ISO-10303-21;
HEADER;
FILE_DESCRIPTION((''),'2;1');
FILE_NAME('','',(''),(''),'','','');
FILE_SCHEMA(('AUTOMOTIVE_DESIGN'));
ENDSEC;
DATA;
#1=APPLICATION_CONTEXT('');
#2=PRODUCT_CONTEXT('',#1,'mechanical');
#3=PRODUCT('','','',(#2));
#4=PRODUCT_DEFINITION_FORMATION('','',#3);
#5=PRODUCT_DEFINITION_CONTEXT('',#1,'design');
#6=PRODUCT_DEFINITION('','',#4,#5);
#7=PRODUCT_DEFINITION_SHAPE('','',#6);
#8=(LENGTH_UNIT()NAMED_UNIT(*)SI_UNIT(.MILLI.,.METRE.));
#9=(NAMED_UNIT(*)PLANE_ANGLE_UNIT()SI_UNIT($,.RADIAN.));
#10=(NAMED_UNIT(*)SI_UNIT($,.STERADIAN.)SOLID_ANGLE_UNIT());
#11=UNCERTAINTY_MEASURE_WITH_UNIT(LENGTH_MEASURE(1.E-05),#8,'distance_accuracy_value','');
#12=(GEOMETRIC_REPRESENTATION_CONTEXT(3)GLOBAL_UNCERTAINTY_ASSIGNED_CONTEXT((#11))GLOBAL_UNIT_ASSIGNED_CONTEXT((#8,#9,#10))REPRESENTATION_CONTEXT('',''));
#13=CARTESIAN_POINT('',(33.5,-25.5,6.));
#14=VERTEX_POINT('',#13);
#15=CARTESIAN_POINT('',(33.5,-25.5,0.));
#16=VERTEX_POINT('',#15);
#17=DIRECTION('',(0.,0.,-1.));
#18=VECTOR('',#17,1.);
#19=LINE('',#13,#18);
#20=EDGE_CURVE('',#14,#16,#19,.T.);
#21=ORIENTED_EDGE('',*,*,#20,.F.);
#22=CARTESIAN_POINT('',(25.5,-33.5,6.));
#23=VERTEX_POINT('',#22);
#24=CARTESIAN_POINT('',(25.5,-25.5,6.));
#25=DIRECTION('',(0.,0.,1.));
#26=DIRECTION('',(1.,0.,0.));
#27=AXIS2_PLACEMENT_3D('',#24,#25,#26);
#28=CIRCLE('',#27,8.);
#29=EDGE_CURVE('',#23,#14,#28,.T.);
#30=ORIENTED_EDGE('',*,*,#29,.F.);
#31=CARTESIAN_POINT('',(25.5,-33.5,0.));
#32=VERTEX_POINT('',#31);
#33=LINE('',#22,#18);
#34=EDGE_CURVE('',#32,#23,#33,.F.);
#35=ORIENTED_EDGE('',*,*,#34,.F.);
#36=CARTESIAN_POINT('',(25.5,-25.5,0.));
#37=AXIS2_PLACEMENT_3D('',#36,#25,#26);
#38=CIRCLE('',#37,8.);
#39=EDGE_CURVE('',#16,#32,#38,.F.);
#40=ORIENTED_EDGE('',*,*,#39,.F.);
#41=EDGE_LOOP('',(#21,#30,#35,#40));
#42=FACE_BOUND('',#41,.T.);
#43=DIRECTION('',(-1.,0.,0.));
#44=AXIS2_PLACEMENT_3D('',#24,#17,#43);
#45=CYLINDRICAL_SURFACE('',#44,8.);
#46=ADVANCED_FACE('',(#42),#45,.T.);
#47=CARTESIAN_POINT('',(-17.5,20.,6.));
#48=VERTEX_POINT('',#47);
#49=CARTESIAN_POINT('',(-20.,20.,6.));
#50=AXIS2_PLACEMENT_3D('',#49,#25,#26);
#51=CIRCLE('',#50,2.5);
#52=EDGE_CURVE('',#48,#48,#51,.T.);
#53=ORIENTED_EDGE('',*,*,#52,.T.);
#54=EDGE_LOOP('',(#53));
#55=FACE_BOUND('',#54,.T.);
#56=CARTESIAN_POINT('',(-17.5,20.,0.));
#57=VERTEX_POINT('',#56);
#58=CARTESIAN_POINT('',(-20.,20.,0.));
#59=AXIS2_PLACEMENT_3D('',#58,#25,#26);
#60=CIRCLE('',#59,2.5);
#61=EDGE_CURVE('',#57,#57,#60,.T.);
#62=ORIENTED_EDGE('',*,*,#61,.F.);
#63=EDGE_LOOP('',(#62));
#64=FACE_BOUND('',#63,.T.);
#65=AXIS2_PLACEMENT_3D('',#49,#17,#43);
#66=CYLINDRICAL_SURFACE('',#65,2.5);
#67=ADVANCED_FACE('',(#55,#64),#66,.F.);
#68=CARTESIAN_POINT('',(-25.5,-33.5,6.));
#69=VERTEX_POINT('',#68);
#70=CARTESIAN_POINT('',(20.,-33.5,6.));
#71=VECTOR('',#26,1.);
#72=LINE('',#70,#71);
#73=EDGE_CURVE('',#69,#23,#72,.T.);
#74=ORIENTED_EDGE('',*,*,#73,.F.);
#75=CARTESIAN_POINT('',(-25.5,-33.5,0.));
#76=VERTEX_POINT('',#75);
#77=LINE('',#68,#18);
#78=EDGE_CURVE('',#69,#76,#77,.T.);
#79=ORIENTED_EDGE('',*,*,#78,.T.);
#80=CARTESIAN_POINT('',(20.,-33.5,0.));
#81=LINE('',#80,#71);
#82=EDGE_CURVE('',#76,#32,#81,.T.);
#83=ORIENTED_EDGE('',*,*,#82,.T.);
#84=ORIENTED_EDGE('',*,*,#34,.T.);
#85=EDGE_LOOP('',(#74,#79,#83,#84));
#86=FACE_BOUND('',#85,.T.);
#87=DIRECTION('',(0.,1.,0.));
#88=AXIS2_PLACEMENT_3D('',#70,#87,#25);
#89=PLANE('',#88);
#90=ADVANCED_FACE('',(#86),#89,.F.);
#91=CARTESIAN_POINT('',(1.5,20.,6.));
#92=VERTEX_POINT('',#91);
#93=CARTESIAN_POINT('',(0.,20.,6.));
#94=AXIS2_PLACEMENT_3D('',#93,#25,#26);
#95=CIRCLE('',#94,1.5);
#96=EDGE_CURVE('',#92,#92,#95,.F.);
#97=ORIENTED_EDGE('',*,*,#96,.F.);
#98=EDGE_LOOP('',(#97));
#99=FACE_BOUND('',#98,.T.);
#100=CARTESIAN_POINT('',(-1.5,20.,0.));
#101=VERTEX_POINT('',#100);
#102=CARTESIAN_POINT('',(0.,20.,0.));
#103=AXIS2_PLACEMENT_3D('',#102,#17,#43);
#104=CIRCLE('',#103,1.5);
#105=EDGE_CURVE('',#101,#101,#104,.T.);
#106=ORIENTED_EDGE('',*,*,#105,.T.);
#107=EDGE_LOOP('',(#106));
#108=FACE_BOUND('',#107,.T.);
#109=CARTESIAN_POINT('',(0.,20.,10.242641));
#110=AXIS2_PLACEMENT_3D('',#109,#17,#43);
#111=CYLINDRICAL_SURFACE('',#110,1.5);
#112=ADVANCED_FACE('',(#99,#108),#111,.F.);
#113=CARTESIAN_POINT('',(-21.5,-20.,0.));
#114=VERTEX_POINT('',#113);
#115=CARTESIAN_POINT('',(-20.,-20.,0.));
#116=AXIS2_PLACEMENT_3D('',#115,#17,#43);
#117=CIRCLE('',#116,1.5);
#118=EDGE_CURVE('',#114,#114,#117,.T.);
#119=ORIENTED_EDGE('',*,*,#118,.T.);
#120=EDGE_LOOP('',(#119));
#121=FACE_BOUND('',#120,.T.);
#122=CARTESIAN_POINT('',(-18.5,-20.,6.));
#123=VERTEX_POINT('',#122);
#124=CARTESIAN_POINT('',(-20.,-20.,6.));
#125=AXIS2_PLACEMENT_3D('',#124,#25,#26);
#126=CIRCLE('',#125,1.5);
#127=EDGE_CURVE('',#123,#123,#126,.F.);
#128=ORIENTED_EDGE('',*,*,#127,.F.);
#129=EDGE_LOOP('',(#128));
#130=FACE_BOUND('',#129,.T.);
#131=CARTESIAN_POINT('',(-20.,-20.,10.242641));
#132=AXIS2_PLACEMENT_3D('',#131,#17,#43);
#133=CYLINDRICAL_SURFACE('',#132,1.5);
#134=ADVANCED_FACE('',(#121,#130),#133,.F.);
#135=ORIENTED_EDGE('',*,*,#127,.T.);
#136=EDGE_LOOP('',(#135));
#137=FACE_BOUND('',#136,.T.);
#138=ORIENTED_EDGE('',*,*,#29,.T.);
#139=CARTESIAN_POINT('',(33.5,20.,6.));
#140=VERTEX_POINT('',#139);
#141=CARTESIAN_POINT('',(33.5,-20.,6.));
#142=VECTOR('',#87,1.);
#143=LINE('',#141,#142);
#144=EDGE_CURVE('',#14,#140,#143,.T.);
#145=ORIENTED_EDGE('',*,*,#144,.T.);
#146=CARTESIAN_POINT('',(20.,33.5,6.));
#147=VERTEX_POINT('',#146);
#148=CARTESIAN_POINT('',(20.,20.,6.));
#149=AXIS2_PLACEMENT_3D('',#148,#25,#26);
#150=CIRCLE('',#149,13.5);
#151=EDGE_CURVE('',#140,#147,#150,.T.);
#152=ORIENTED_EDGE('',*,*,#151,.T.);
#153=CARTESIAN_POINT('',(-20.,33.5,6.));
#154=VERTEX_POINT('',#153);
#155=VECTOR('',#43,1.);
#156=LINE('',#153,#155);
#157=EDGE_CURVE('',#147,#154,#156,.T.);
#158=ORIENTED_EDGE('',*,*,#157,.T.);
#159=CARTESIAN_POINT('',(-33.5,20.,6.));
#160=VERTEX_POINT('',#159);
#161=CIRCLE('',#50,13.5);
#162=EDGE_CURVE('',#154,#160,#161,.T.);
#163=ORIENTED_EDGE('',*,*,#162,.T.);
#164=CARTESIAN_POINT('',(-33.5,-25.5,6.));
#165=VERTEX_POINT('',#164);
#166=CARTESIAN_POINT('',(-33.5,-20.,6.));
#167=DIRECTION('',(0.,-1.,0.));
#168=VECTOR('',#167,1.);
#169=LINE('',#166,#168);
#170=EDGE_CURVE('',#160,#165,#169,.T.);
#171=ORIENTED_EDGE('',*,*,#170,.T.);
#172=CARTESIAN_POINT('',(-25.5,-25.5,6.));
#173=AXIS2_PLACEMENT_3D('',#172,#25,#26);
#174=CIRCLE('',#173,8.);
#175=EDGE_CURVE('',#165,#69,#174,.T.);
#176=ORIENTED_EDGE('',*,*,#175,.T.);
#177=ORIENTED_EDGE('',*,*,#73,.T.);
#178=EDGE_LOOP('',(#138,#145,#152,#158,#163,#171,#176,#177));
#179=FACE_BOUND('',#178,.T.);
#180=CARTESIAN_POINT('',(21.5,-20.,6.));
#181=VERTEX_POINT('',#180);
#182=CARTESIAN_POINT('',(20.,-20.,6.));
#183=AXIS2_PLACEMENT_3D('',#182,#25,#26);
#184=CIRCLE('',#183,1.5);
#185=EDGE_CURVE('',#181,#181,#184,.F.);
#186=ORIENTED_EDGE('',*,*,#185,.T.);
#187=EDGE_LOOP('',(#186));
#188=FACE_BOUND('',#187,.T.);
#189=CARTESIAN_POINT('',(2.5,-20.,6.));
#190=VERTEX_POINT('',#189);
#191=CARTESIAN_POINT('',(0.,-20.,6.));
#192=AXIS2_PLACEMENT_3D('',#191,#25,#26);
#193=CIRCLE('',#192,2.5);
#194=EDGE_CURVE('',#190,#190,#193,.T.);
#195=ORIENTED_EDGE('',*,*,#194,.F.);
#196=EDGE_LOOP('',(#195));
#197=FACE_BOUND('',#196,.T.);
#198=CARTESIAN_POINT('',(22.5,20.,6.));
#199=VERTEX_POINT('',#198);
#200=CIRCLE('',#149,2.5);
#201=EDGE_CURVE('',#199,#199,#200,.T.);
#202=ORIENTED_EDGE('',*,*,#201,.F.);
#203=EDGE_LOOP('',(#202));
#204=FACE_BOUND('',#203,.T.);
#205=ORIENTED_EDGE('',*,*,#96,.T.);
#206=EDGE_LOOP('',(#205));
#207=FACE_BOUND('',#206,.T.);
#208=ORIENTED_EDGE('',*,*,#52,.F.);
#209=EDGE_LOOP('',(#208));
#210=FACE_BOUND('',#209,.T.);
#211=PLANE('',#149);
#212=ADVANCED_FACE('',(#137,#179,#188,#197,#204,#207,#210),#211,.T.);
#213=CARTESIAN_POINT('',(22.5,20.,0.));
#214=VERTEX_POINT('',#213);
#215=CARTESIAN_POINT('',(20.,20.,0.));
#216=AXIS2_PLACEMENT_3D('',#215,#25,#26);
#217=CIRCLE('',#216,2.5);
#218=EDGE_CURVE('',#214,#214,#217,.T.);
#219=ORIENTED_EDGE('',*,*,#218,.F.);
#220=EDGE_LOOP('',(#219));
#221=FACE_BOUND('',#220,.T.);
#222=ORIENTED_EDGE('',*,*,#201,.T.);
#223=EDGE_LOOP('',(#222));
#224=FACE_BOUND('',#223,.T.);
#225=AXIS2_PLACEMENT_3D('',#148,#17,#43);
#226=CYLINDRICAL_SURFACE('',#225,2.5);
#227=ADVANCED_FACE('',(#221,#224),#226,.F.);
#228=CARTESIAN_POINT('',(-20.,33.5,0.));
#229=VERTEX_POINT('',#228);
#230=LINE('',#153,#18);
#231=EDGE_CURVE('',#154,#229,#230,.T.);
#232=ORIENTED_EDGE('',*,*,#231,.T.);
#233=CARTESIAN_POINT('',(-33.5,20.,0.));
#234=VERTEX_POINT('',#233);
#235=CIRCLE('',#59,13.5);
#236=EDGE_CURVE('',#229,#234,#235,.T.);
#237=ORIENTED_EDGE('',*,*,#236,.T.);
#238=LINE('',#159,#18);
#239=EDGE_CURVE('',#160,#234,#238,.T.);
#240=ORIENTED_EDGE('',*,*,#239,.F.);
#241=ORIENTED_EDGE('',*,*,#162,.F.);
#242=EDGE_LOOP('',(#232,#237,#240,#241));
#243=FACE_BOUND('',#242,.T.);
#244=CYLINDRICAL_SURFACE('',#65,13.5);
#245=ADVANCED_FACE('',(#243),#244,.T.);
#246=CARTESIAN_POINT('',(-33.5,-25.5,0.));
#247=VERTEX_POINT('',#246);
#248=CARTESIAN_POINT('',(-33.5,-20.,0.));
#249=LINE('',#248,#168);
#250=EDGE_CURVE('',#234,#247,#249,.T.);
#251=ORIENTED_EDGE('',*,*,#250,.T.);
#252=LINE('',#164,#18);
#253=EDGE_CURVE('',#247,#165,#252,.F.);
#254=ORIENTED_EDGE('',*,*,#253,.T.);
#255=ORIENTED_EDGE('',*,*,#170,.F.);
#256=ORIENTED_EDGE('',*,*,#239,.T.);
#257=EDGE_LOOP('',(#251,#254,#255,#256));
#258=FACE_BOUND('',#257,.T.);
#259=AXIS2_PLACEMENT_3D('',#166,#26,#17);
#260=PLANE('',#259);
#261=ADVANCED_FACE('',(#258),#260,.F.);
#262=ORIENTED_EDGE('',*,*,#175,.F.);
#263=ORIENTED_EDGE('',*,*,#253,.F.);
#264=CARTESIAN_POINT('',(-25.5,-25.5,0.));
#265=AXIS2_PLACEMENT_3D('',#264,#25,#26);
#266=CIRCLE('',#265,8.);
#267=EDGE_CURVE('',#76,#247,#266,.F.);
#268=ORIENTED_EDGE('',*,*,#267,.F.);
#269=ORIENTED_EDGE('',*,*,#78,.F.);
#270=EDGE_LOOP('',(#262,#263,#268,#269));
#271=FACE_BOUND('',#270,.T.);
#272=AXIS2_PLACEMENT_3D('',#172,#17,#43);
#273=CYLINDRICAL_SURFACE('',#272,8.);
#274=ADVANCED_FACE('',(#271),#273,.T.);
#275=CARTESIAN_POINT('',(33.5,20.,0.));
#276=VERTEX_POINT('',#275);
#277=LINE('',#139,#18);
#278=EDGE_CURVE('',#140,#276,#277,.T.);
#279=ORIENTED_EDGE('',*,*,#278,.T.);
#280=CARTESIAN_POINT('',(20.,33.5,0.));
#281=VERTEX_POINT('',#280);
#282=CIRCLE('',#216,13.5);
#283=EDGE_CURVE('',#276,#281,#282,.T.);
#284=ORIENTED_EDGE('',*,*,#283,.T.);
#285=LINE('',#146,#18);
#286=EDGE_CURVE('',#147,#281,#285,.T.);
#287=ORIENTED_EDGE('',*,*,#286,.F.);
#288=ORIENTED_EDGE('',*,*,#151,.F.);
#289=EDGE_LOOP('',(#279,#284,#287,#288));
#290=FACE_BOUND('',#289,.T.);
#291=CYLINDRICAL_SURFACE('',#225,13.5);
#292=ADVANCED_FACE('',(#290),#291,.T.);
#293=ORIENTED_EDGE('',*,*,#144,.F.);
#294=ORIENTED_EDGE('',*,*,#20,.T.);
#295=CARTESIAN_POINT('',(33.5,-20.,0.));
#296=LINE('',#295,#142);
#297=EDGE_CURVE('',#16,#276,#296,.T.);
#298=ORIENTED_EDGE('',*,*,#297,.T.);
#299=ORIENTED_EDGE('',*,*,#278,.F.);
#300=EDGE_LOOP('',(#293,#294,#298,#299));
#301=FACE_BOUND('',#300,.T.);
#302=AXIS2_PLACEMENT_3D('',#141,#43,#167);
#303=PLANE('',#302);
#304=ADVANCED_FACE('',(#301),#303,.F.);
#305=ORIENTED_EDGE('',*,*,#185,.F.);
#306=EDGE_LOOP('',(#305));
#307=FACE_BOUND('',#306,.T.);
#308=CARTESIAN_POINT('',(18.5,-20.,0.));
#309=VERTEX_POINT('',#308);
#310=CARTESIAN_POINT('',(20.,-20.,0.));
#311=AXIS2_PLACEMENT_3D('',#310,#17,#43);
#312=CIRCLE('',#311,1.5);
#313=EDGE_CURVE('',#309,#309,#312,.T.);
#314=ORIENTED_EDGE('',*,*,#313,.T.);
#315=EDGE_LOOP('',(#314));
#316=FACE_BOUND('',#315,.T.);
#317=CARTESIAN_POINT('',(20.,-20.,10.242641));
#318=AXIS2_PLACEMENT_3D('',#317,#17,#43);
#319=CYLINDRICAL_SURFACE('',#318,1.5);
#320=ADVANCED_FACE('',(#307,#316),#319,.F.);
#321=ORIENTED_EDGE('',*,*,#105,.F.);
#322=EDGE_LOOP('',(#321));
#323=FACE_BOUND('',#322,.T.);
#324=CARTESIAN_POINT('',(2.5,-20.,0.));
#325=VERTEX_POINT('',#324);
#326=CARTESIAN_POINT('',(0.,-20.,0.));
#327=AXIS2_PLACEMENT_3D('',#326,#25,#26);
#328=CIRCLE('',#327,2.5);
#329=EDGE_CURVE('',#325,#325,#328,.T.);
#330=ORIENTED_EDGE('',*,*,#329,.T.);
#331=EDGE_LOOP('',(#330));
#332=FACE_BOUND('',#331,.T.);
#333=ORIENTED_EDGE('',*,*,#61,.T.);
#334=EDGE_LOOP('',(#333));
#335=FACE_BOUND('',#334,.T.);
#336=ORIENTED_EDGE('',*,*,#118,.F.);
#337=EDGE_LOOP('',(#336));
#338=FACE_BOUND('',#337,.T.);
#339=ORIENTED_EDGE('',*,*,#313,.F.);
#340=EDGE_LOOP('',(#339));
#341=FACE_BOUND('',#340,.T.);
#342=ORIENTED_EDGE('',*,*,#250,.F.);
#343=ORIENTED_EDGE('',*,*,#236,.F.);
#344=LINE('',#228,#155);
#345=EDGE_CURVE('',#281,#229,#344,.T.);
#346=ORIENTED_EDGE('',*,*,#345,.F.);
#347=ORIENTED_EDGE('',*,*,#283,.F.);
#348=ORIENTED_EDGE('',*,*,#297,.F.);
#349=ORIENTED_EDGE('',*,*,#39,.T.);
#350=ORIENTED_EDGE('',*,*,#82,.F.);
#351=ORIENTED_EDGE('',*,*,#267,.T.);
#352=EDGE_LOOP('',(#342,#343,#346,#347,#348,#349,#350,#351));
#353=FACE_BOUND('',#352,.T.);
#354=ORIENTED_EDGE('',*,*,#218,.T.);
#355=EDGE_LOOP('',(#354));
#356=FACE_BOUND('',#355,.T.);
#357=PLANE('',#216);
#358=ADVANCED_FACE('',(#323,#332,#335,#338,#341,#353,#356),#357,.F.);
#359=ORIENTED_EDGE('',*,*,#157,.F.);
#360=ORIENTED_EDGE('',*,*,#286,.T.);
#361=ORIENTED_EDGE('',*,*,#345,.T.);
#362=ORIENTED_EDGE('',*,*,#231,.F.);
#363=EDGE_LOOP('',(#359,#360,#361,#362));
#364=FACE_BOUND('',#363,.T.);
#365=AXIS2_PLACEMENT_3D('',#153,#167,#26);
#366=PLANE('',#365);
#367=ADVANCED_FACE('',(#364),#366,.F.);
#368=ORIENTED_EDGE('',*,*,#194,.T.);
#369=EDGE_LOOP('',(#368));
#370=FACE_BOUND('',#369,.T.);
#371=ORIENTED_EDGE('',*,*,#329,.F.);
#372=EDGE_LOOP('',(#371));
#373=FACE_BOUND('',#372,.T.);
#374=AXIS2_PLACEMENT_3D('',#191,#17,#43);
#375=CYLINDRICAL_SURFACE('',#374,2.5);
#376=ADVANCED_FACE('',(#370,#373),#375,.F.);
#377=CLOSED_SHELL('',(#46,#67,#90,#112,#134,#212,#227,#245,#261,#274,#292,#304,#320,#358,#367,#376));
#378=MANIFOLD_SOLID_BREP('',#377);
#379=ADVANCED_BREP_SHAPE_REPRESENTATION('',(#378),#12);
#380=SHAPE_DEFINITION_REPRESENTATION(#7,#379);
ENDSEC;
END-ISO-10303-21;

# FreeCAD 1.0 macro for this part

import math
import FreeCAD as App
import Part
import Sketcher
from FreeCAD import Vector


def edges_at(feature, points):
    """Names of the edges that pass closest to the given points."""
    edges = feature.Shape.Edges
    near = lambda p: min(range(len(edges)), key=lambda i: edges[i].distToShape(Part.Vertex(*p))[0])
    return sorted({f"Edge{near(p) + 1}" for p in points})

doc = App.newDocument("Part")
body = doc.addObject("PartDesign::Body", "Body")

# Sketch on XY plane
sketch1 = body.newObject("Sketcher::SketchObject", "Sketch")
sketch1.AttachmentSupport = (doc.getObject("XY_Plane"), [""])
sketch1.MapMode = "FlatFace"
sketch1.addGeometry(Part.LineSegment(Vector(20, 33.5, 0), Vector(-20, 33.5, 0)), False)
sketch1.addGeometry(Part.ArcOfCircle(Part.Circle(Vector(-20, 20, 0), Vector(0, 0, 1), 13.5), math.radians(90), math.radians(180)), False)
sketch1.addGeometry(Part.LineSegment(Vector(-33.5, 20, 0), Vector(-33.5, -20, 0)), False)
sketch1.addGeometry(Part.ArcOfCircle(Part.Circle(Vector(-20, -20, 0), Vector(0, 0, 1), 13.5), math.radians(180), math.radians(270)), False)
sketch1.addGeometry(Part.LineSegment(Vector(-20, -33.5, 0), Vector(20, -33.5, 0)), False)
sketch1.addGeometry(Part.ArcOfCircle(Part.Circle(Vector(20, -20, 0), Vector(0, 0, 1), 13.5), math.radians(-90), math.radians(0)), False)
sketch1.addGeometry(Part.LineSegment(Vector(33.5, -20, 0), Vector(33.5, 20, 0)), False)
sketch1.addGeometry(Part.ArcOfCircle(Part.Circle(Vector(20, 20, 0), Vector(0, 0, 1), 13.5), math.radians(0), math.radians(90)), False)
sketch1.addGeometry(Part.Circle(Vector(0, -20, 0), Vector(0, 0, 1), 2.5), False)
sketch1.addGeometry(Part.Circle(Vector(20, 20, 0), Vector(0, 0, 1), 2.5), False)
sketch1.addGeometry(Part.Circle(Vector(-20, 20, 0), Vector(0, 0, 1), 2.5), False)
sketch1.addConstraint(Sketcher.Constraint("Tangent", 0, 2, 1, 1))
sketch1.addConstraint(Sketcher.Constraint("Tangent", 1, 2, 2, 1))
sketch1.addConstraint(Sketcher.Constraint("Tangent", 2, 2, 3, 1))
sketch1.addConstraint(Sketcher.Constraint("Tangent", 3, 2, 4, 1))
sketch1.addConstraint(Sketcher.Constraint("Tangent", 4, 2, 5, 1))
sketch1.addConstraint(Sketcher.Constraint("Tangent", 5, 2, 6, 1))
sketch1.addConstraint(Sketcher.Constraint("Tangent", 6, 2, 7, 1))
sketch1.addConstraint(Sketcher.Constraint("Tangent", 7, 2, 0, 1))
sketch1.addConstraint(Sketcher.Constraint("Horizontal", 0))
sketch1.addConstraint(Sketcher.Constraint("Vertical", 2))
sketch1.addConstraint(Sketcher.Constraint("Horizontal", 4))
sketch1.addConstraint(Sketcher.Constraint("Vertical", 6))
sketch1.addConstraint(Sketcher.Constraint("Coincident", 9, 3, 7, 3))
sketch1.addConstraint(Sketcher.Constraint("Coincident", 10, 3, 1, 3))
sketch1.addConstraint(Sketcher.Constraint("Equal", 1, 3))
sketch1.addConstraint(Sketcher.Constraint("Equal", 3, 5))
sketch1.addConstraint(Sketcher.Constraint("Equal", 5, 7))
sketch1.addConstraint(Sketcher.Constraint("Equal", 8, 9))
sketch1.addConstraint(Sketcher.Constraint("Equal", 9, 10))
sketch1.addConstraint(Sketcher.Constraint("Symmetric", 1, 3, 5, 3, -1, 1))
sketch1.addConstraint(Sketcher.Constraint("PointOnObject", 8, 3, -2))
sketch1.addConstraint(Sketcher.Constraint("Horizontal", 5, 3, 8, 3))
sketch1.addConstraint(Sketcher.Constraint("Equal", 4, 2))
sketch1.addConstraint(Sketcher.Constraint("Diameter", 8, 5.0))
sketch1.addConstraint(Sketcher.Constraint("Radius", 1, 13.5))
sketch1.addConstraint(Sketcher.Constraint("DistanceX", 0, 2, 0, 1, 40.0))
pad1 = body.newObject("PartDesign::Pad", "Pad")
pad1.Profile = sketch1
pad1.Length = 6

# Sketch on XY plane
sketch2 = body.newObject("Sketcher::SketchObject", "Sketch001")
sketch2.AttachmentSupport = (doc.getObject("XY_Plane"), [""])
sketch2.MapMode = "FlatFace"
sketch2.addGeometry(Part.LineSegment(Vector(33.5, -20, 0), Vector(33.5, -33.5, 0)), False)
sketch2.addGeometry(Part.LineSegment(Vector(33.5, -33.5, 0), Vector(20, -33.5, 0)), False)
sketch2.addGeometry(Part.LineSegment(Vector(20, -33.5, 0), Vector(20, -20, 0)), False)
sketch2.addGeometry(Part.LineSegment(Vector(20, -20, 0), Vector(33.5, -20, 0)), False)
sketch2.addGeometry(Part.LineSegment(Vector(-20, -20, 0), Vector(-20, -33.5, 0)), False)
sketch2.addGeometry(Part.LineSegment(Vector(-20, -33.5, 0), Vector(-33.5, -33.5, 0)), False)
sketch2.addGeometry(Part.LineSegment(Vector(-33.5, -33.5, 0), Vector(-33.5, -20, 0)), False)
sketch2.addGeometry(Part.LineSegment(Vector(-33.5, -20, 0), Vector(-20, -20, 0)), False)
sketch2.addConstraint(Sketcher.Constraint("Coincident", 0, 2, 1, 1))
sketch2.addConstraint(Sketcher.Constraint("Coincident", 1, 2, 2, 1))
sketch2.addConstraint(Sketcher.Constraint("Coincident", 2, 2, 3, 1))
sketch2.addConstraint(Sketcher.Constraint("Coincident", 3, 2, 0, 1))
sketch2.addConstraint(Sketcher.Constraint("Coincident", 4, 2, 5, 1))
sketch2.addConstraint(Sketcher.Constraint("Coincident", 5, 2, 6, 1))
sketch2.addConstraint(Sketcher.Constraint("Coincident", 6, 2, 7, 1))
sketch2.addConstraint(Sketcher.Constraint("Coincident", 7, 2, 4, 1))
sketch2.addConstraint(Sketcher.Constraint("Vertical", 0))
sketch2.addConstraint(Sketcher.Constraint("Horizontal", 1))
sketch2.addConstraint(Sketcher.Constraint("Vertical", 2))
sketch2.addConstraint(Sketcher.Constraint("Horizontal", 3))
sketch2.addConstraint(Sketcher.Constraint("Vertical", 4))
sketch2.addConstraint(Sketcher.Constraint("Horizontal", 5))
sketch2.addConstraint(Sketcher.Constraint("Vertical", 6))
sketch2.addConstraint(Sketcher.Constraint("Horizontal", 7))
sketch2.addConstraint(Sketcher.Constraint("Symmetric", 1, 2, 4, 2, -2))
sketch2.addConstraint(Sketcher.Constraint("Symmetric", 3, 2, 6, 2, -2))
sketch2.addConstraint(Sketcher.Constraint("Equal", 7, 0))
sketch2.addConstraint(Sketcher.Constraint("DistanceX", 1, 2, 1, 1, 13.5))
sketch2.addConstraint(Sketcher.Constraint("DistanceX", -1, 1, 1, 2, 20.0))
sketch2.addConstraint(Sketcher.Constraint("DistanceY", 2, 2, -1, 1, 20.0))
pad2 = body.newObject("PartDesign::Pad", "Pad001")
pad2.Profile = sketch2
pad2.Length = 6
doc.recompute()

fillet = body.newObject("PartDesign::Fillet", "Fillet")
fillet.Base = (pad2, edges_at(pad2, [(33.5, -33.5, 3), (-33.5, -33.5, 3)]))
fillet.Radius = 8

# Sketch on XY plane
sketch3 = body.newObject("Sketcher::SketchObject", "Sketch002")
sketch3.AttachmentSupport = (doc.getObject("XY_Plane"), [""])
sketch3.MapMode = "FlatFace"
sketch3.addGeometry(Part.Circle(Vector(0, 20, 0), Vector(0, 0, 1), 1.5), False)
sketch3.addGeometry(Part.Circle(Vector(-20, -20, 0), Vector(0, 0, 1), 1.5), False)
sketch3.addGeometry(Part.Circle(Vector(20, -20, 0), Vector(0, 0, 1), 1.5), False)
sketch3.addConstraint(Sketcher.Constraint("Equal", 0, 1))
sketch3.addConstraint(Sketcher.Constraint("Equal", 1, 2))
sketch3.addConstraint(Sketcher.Constraint("Symmetric", 1, 3, 2, 3, -2))
sketch3.addConstraint(Sketcher.Constraint("PointOnObject", 0, 3, -2))
sketch3.addConstraint(Sketcher.Constraint("Diameter", 0, 3.0))
sketch3.addConstraint(Sketcher.Constraint("DistanceY", -1, 1, 0, 3, 20.0))
sketch3.addConstraint(Sketcher.Constraint("DistanceX", 1, 3, -1, 1, 20.0))
sketch3.addConstraint(Sketcher.Constraint("DistanceY", 1, 3, -1, 1, 20.0))
pocket1 = body.newObject("PartDesign::Pocket", "Pocket")
pocket1.Profile = sketch3
pocket1.Length = 6
pocket1.Reversed = True

doc.recompute()
